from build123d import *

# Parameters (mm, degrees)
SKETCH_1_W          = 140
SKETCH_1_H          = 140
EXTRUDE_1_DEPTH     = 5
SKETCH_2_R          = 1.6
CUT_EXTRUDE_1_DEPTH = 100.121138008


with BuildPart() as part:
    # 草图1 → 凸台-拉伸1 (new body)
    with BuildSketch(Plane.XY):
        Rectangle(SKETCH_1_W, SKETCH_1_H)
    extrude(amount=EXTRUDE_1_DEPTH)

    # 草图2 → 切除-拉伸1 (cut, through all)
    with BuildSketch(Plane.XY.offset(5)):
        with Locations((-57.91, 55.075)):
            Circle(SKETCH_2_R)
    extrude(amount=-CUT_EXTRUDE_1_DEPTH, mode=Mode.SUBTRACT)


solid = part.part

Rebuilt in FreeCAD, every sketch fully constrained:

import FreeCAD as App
import Part
import Sketcher
from FreeCAD import Vector

doc = App.newDocument("Part")
body = doc.addObject("PartDesign::Body", "Body")

sketch1 = body.newObject("Sketcher::SketchObject", "Sketch")
sketch1.AttachmentSupport = (doc.getObject("XY_Plane"), [""])
sketch1.MapMode = "FlatFace"
sketch1.addGeometry([
    Part.LineSegment(Vector(-70, 70, 0), Vector(-70, -70, 0)),
    Part.LineSegment(Vector(-70, -70, 0), Vector(70, -70, 0)),
    Part.LineSegment(Vector(70, -70, 0), Vector(70, 70, 0)),
    Part.LineSegment(Vector(70, 70, 0), Vector(-70, 70, 0)),
], False)
sketch1.addConstraint([
    Sketcher.Constraint("Coincident", 0, 2, 1, 1),
    Sketcher.Constraint("Coincident", 1, 2, 2, 1),
    Sketcher.Constraint("Coincident", 2, 2, 3, 1),
    Sketcher.Constraint("Coincident", 3, 2, 0, 1),
    Sketcher.Constraint("Vertical", 0),
    Sketcher.Constraint("Horizontal", 1),
    Sketcher.Constraint("Vertical", 2),
    Sketcher.Constraint("Horizontal", 3),
    Sketcher.Constraint("Symmetric", 0, 2, 2, 2, -1, 1),
    Sketcher.Constraint("Equal", 3, 0),
    Sketcher.Constraint("DistanceX", 1, 1, 1, 2, 140.0),
])
pad1 = body.newObject("PartDesign::Pad", "Pad")
pad1.Profile = sketch1
pad1.Length = 5

sketch2 = body.newObject("Sketcher::SketchObject", "Sketch001")
sketch2.AttachmentSupport = (doc.getObject("XY_Plane"), [""])
sketch2.MapMode = "FlatFace"
sketch2.AttachmentOffset = App.Placement(Vector(0, 0, 5), App.Rotation())
sketch2.addGeometry(Part.Circle(Vector(-57.91, 55.075, 0), Vector(0, 0, 1), 1.6), False)
sketch2.addConstraint([
    Sketcher.Constraint("Diameter", 0, 3.2),
    Sketcher.Constraint("DistanceX", 0, 3, -1, 1, 57.91),
    Sketcher.Constraint("DistanceY", -1, 1, 0, 3, 55.075),
])
pocket1 = body.newObject("PartDesign::Pocket", "Pocket")
pocket1.Profile = sketch2
pocket1.Type = "ThroughAll"

doc.recompute()
